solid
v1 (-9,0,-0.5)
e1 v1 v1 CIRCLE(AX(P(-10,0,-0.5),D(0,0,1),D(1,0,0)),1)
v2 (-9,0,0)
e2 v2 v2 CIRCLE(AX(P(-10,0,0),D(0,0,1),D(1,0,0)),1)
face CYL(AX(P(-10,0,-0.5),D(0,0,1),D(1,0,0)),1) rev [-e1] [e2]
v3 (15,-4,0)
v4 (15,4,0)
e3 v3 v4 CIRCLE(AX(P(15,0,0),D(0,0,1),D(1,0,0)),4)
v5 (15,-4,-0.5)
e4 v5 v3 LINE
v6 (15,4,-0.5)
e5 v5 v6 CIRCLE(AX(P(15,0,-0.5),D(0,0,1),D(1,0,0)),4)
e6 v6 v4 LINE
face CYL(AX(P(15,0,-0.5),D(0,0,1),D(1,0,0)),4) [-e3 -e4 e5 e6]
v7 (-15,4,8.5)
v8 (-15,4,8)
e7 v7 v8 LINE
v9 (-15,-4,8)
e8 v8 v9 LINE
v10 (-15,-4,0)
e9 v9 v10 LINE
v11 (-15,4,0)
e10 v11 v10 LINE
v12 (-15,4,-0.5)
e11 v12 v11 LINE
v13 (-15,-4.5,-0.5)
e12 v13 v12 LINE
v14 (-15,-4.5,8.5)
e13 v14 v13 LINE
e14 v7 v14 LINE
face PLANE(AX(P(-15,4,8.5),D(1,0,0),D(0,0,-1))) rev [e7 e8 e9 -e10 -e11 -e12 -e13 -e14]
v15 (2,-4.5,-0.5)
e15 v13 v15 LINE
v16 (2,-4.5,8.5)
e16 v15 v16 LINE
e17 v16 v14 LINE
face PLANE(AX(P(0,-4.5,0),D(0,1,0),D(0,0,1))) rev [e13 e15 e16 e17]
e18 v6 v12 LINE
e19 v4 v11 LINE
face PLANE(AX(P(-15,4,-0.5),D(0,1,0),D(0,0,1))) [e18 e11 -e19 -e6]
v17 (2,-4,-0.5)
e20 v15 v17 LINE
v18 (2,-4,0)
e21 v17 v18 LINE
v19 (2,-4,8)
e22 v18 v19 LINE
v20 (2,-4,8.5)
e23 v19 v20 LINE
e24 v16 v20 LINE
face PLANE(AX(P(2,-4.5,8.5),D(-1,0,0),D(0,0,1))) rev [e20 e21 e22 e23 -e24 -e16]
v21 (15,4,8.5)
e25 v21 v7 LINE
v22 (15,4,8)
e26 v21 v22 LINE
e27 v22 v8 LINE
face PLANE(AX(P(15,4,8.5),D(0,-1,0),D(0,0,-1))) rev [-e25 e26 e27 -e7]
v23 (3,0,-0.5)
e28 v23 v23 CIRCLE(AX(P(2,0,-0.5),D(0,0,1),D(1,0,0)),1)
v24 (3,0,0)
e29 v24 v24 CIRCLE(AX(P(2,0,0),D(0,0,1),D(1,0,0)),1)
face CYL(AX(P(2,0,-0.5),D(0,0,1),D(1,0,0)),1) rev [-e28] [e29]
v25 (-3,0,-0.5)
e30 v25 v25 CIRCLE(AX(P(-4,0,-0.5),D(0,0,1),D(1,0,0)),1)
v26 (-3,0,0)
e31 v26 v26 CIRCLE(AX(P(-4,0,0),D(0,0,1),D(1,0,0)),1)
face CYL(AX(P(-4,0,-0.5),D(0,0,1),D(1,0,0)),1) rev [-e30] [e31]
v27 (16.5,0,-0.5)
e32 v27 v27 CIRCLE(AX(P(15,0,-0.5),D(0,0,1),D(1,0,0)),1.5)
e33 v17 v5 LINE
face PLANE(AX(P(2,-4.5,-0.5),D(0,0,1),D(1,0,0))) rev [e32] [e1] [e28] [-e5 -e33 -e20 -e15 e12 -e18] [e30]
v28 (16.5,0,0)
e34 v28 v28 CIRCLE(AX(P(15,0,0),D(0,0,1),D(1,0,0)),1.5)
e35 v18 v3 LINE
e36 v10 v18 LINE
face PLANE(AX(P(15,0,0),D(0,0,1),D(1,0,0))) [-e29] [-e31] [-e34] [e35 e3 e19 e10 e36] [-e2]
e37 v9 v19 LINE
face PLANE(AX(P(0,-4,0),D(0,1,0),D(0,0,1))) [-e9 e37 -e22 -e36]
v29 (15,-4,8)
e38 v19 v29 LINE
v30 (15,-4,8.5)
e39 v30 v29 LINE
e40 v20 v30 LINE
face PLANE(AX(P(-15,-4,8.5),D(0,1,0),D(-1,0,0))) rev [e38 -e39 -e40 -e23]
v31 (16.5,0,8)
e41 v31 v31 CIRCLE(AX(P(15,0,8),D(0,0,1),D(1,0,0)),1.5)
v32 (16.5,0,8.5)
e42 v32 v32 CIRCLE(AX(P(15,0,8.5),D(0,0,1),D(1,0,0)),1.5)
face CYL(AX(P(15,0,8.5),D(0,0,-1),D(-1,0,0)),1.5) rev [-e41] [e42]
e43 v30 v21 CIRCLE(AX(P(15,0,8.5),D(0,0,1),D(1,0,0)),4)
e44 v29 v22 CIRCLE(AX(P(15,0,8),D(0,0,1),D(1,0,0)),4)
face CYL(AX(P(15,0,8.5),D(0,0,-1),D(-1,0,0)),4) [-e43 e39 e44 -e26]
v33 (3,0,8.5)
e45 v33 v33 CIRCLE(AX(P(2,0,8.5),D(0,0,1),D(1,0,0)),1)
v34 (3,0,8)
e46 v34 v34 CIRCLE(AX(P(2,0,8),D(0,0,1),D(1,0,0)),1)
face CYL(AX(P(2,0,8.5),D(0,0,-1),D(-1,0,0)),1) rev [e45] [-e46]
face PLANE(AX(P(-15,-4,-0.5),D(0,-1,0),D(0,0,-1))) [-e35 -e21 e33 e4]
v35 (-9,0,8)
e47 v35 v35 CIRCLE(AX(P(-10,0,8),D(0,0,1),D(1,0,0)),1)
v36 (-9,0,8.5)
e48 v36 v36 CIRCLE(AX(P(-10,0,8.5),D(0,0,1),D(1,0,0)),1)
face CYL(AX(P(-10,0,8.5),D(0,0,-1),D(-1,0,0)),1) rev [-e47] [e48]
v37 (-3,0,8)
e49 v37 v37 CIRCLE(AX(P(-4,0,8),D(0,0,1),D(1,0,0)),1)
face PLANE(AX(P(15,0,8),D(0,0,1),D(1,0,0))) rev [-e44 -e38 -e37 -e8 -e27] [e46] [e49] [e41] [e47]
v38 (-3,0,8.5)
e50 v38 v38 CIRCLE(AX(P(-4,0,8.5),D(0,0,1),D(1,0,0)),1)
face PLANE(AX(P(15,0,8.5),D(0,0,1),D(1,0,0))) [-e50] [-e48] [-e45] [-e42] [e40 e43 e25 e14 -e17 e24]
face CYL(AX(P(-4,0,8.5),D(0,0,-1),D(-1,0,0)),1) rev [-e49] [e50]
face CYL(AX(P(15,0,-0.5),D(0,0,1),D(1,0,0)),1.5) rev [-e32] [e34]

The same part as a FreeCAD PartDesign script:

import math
import FreeCAD as App
import Part
import Sketcher


def add_polygon(sketch, points):
    """Adds a closed chain of lines whose ends are joined by coincident constraints."""
    first, n = sketch.GeometryCount, len(points)
    for a, b in zip(points, points[1:] + points[:1]):
        sketch.addGeometry(Part.LineSegment(App.Vector(*a, 0), App.Vector(*b, 0)), False)
    for i in range(n):
        sketch.addConstraint(Sketcher.Constraint("Coincident", first + i, 2, first + (i + 1) % n, 1))

doc = App.newDocument("Part")
body = doc.addObject("PartDesign::Body", "Body")

sketch1 = body.newObject("Sketcher::SketchObject", "Sketch")
sketch1.AttachmentSupport = (doc.getObject("XY_Plane"), [""])
sketch1.MapMode = "FlatFace"
sketch1.AttachmentOffset = App.Placement(App.Vector(0, 0, 8), App.Rotation())
sketch1.addGeometry([
    Part.LineSegment(App.Vector(15, 4, 0), App.Vector(-15, 4, 0)),
    Part.LineSegment(App.Vector(-15, 4, 0), App.Vector(-15, -4, 0)),
    Part.LineSegment(App.Vector(-15, -4, 0), App.Vector(15, -4, 0)),
    Part.ArcOfCircle(Part.Circle(App.Vector(15, 0, 0), App.Vector(0, 0, 1), 4), math.radians(-90), math.radians(90)),
    Part.Circle(App.Vector(-10, 0, 0), App.Vector(0, 0, 1), 1),
    Part.Circle(App.Vector(-4, 0, 0), App.Vector(0, 0, 1), 1),
    Part.Circle(App.Vector(2, 0, 0), App.Vector(0, 0, 1), 1),
    Part.Circle(App.Vector(15, 0, 0), App.Vector(0, 0, 1), 1.5),
], False)
sketch1.addConstraint([
    Sketcher.Constraint("Coincident", 0, 2, 1, 1),
    Sketcher.Constraint("Coincident", 1, 2, 2, 1),
    Sketcher.Constraint("Tangent", 2, 2, 3, 1),
    Sketcher.Constraint("Tangent", 3, 2, 0, 1),
    Sketcher.Constraint("Horizontal", 0),
    Sketcher.Constraint("Vertical", 1),
    Sketcher.Constraint("Horizontal", 2),
    Sketcher.Constraint("Coincident", 7, 3, 3, 3),
    Sketcher.Constraint("Equal", 4, 5),
    Sketcher.Constraint("Equal", 5, 6),
    Sketcher.Constraint("Symmetric", 0, 2, 2, 2, -1, 1),
    Sketcher.Constraint("PointOnObject", 4, 3, -1),
    Sketcher.Constraint("PointOnObject", 5, 3, -1),
    Sketcher.Constraint("PointOnObject", 6, 3, -1),
    Sketcher.Constraint("Diameter", 4, 2.0),
    Sketcher.Constraint("Diameter", 7, 3.0),
    Sketcher.Constraint("Radius", 3, 4.0),
    Sketcher.Constraint("DistanceX", 0, 2, 0, 1, 30.0),
    Sketcher.Constraint("DistanceX", 4, 3, -1, 1, 10.0),
    Sketcher.Constraint("DistanceX", 5, 3, -1, 1, 4.0),
    Sketcher.Constraint("DistanceX", -1, 1, 6, 3, 2.0),
])
pad1 = body.newObject("PartDesign::Pad", "Pad")
pad1.Profile = sketch1
pad1.Length = 0.5
body2 = doc.addObject("PartDesign::Body", "Body001")

sketch2 = body2.newObject("Sketcher::SketchObject", "Sketch001")
sketch2.AttachmentSupport = (doc.getObject("XY_Plane001"), [""])
sketch2.MapMode = "FlatFace"
sketch2.addGeometry([
    Part.LineSegment(App.Vector(15, 4, 0), App.Vector(-15, 4, 0)),
    Part.LineSegment(App.Vector(-15, 4, 0), App.Vector(-15, -4, 0)),
    Part.LineSegment(App.Vector(-15, -4, 0), App.Vector(15, -4, 0)),
    Part.ArcOfCircle(Part.Circle(App.Vector(15, 0, 0), App.Vector(0, 0, 1), 4), math.radians(-90), math.radians(90)),
    Part.Circle(App.Vector(15, 0, 0), App.Vector(0, 0, 1), 1.5),
    Part.Circle(App.Vector(2, 0, 0), App.Vector(0, 0, 1), 1),
    Part.Circle(App.Vector(-4, 0, 0), App.Vector(0, 0, 1), 1),
    Part.Circle(App.Vector(-10, 0, 0), App.Vector(0, 0, 1), 1),
], False)
sketch2.addConstraint([
    Sketcher.Constraint("Coincident", 0, 2, 1, 1),
    Sketcher.Constraint("Coincident", 1, 2, 2, 1),
    Sketcher.Constraint("Tangent", 2, 2, 3, 1),
    Sketcher.Constraint("Tangent", 3, 2, 0, 1),
    Sketcher.Constraint("Horizontal", 0),
    Sketcher.Constraint("Vertical", 1),
    Sketcher.Constraint("Horizontal", 2),
    Sketcher.Constraint("Coincident", 4, 3, 3, 3),
    Sketcher.Constraint("Equal", 5, 6),
    Sketcher.Constraint("Equal", 6, 7),
    Sketcher.Constraint("Symmetric", 0, 2, 2, 2, -1, 1),
    Sketcher.Constraint("PointOnObject", 5, 3, -1),
    Sketcher.Constraint("PointOnObject", 6, 3, -1),
    Sketcher.Constraint("PointOnObject", 7, 3, -1),
    Sketcher.Constraint("Diameter", 4, 3.0),
    Sketcher.Constraint("Diameter", 5, 2.0),
    Sketcher.Constraint("Radius", 3, 4.0),
    Sketcher.Constraint("DistanceX", 0, 2, 0, 1, 30.0),
    Sketcher.Constraint("DistanceX", -1, 1, 5, 3, 2.0),
    Sketcher.Constraint("DistanceX", 6, 3, -1, 1, 4.0),
    Sketcher.Constraint("DistanceX", 7, 3, -1, 1, 10.0),
])
pad2 = body2.newObject("PartDesign::Pad", "Pad001")
pad2.Profile = sketch2
pad2.Length = 0.5
pad2.Reversed = True
body.AllowCompound = True
doc.recompute()

boolean = body.newObject("PartDesign::Boolean", "Boolean")
boolean.Type = "Fuse"
boolean.addObjects([body2])

sketch3 = body.newObject("Sketcher::SketchObject", "Sketch002")
sketch3.AttachmentSupport = (doc.getObject("XZ_Plane"), [""])
sketch3.MapMode = "FlatFace"
sketch3.AttachmentOffset = App.Placement(App.Vector(0, 0, 4), App.Rotation())
add_polygon(sketch3, [(2, 0), (2, 8), (-15, 8), (-15, 0)])
sketch3.addConstraint([
    Sketcher.Constraint("Vertical", 0),
    Sketcher.Constraint("Horizontal", 1),
    Sketcher.Constraint("Vertical", 2),
    Sketcher.Constraint("Horizontal", 3),
    Sketcher.Constraint("DistanceX", 1, 2, 1, 1, 17.0),
    Sketcher.Constraint("DistanceY", 0, 1, 0, 2, 9.0),
    Sketcher.Constraint("DistanceX", -1, 1, 0, 2, 2.0),
    Sketcher.Constraint("DistanceY", -1, 1, 0, 2, 8.5),
])
pad3 = body.newObject("PartDesign::Pad", "Pad002")
pad3.Profile = sketch3
pad3.Length = 0.5

doc.recompute()
